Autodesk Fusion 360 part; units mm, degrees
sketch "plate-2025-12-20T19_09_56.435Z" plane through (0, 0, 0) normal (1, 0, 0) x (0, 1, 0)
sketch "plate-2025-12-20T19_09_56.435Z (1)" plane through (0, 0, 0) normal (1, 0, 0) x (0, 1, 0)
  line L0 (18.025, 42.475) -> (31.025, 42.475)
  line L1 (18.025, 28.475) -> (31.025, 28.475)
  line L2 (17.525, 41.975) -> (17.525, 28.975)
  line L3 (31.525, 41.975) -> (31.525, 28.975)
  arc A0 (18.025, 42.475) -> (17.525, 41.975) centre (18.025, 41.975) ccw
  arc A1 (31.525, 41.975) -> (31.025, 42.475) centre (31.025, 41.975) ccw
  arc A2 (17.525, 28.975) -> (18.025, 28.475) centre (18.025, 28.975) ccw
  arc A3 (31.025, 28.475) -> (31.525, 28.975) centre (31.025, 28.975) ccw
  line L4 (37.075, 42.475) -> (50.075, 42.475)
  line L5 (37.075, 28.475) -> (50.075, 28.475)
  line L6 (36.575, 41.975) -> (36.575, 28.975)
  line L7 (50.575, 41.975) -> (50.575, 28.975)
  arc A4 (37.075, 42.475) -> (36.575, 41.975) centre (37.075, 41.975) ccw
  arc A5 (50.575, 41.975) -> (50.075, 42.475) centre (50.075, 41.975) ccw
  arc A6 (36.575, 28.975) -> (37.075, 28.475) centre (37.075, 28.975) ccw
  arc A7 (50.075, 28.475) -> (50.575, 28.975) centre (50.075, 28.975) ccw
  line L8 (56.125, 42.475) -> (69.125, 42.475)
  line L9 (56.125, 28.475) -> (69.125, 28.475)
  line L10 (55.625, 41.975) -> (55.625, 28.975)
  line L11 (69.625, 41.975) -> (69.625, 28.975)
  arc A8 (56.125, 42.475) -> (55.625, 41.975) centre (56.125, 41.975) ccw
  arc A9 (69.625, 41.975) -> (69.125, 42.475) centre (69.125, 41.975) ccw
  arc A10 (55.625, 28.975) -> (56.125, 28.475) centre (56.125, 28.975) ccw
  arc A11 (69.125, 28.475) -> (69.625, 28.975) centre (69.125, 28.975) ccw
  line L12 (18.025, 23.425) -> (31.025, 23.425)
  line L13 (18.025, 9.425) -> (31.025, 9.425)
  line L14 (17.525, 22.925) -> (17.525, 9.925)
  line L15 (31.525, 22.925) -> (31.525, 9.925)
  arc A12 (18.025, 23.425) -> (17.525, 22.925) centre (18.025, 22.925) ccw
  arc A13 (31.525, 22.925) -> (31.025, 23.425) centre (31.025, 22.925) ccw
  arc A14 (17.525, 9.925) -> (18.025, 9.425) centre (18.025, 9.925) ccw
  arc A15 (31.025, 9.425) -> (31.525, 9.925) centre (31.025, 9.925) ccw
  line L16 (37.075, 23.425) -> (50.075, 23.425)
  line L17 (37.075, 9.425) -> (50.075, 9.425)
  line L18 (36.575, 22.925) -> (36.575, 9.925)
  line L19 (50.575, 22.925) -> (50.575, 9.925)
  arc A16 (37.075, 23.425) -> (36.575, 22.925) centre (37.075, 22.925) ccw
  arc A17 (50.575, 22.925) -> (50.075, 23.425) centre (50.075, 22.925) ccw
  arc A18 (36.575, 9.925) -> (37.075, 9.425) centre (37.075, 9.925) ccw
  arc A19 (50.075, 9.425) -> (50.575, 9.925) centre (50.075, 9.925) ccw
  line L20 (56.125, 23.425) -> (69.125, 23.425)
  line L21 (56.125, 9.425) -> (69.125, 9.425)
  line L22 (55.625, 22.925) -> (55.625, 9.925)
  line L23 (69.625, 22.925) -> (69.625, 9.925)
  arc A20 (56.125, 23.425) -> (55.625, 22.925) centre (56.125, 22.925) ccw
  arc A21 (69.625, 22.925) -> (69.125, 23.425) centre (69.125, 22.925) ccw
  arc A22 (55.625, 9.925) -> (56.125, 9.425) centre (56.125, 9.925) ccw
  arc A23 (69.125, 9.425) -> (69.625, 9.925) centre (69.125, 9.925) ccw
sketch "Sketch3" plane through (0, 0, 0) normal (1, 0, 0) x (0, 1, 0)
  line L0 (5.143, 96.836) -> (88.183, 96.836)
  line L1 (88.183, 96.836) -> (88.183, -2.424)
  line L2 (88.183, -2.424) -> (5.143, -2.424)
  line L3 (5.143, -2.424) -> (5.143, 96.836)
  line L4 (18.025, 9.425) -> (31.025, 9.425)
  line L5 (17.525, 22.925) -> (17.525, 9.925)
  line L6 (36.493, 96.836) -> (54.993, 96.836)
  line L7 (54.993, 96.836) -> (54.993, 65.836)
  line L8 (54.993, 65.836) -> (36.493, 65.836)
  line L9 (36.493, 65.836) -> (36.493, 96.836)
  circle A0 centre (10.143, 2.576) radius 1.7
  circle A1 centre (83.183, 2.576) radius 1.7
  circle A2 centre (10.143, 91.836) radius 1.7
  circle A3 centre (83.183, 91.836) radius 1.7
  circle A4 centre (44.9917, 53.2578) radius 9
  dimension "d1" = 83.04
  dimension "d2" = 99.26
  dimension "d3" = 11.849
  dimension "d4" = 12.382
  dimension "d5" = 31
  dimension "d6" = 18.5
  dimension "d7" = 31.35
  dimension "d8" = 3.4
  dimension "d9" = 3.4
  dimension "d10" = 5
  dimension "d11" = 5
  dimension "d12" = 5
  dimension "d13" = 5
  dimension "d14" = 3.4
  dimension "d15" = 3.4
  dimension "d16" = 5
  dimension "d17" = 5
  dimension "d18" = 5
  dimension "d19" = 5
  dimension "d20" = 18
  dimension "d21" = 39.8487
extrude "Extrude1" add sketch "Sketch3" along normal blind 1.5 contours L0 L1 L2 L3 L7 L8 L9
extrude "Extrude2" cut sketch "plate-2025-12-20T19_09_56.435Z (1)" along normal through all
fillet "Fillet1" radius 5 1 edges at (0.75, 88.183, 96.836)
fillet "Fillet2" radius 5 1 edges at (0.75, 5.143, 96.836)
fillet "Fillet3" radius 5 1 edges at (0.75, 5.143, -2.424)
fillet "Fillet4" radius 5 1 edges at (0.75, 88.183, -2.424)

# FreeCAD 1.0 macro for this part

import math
import FreeCAD as App
import Part
import Sketcher
from FreeCAD import Vector
Q = App.Units.Quantity


def edges_at(feature, points):
    """Names of the edges that pass closest to the given points."""
    edges = feature.Shape.Edges
    near = lambda p: min(range(len(edges)), key=lambda i: edges[i].distToShape(Part.Vertex(*p))[0])
    return sorted({f"Edge{near(p) + 1}" for p in points})


def add_polygon(sketch, points):
    """Adds a closed chain of lines whose ends are joined by coincident constraints."""
    first, n = sketch.GeometryCount, len(points)
    for a, b in zip(points, points[1:] + points[:1]):
        sketch.addGeometry(Part.LineSegment(App.Vector(*a, 0), App.Vector(*b, 0)), False)
    for i in range(n):
        sketch.addConstraint(Sketcher.Constraint("Coincident", first + i, 2, first + (i + 1) % n, 1))

doc = App.newDocument("Part")
params = doc.addObject("Spreadsheet::Sheet", "Params")
for row, (alias, value) in enumerate([
    ("sketch1_diameter", "18 mm"),
    ("sketch1_diameter2", "3.4 mm"),
    ("sketch1_height", "31 mm"),
    ("sketch1_width", "18.5 mm"),
    ("sketch1_width2", "31.35 mm"),
    ("pad1_length", "1.5 mm"),
    ("sketch2_radius", "0.5 mm"),
    ("sketch2_width", "13 mm"),
    ("fillet_radius", "5 mm"),
    ("fillet2_radius", "5 mm"),
    ("fillet3_radius", "5 mm"),
    ("fillet4_radius", "5 mm"),
], start=1):
    params.set(f"A{row}", alias)
    params.set(f"B{row}", "=" + value)
    params.setAlias(f"B{row}", alias)

body = doc.addObject("PartDesign::Body", "Body")

# Sketch on YZ plane
sketch1 = body.newObject("Sketcher::SketchObject", "Sketch")
sketch1.AttachmentSupport = (doc.getObject("YZ_Plane"), [""])
sketch1.MapMode = "FlatFace"
add_polygon(sketch1, [(36.5, 96.8), (5.1, 96.8), (5.1, -2.4), (88.2, -2.4), (88.2, 96.8), (55, 96.8), (55, 65.8), (36.5, 65.8)])  # lines 0-7
sketch1.addGeometry(Part.Circle(Vector(10.1, 2.6, 0), Vector(0, 0, 1), 1.7), False)  # 8
sketch1.addGeometry(Part.Circle(Vector(83.2, 2.6, 0), Vector(0, 0, 1), 1.7), False)  # 9
sketch1.addGeometry(Part.Circle(Vector(45, 53.3, 0), Vector(0, 0, 1), 9), False)  # 10
sketch1.addGeometry(Part.Circle(Vector(10.1, 91.8, 0), Vector(0, 0, 1), 1.7), False)  # 11
sketch1.addGeometry(Part.Circle(Vector(83.2, 91.8, 0), Vector(0, 0, 1), 1.7), False)  # 12
sketch1.addConstraint([
    Sketcher.Constraint("Horizontal", 0),
    Sketcher.Constraint("Vertical", 1),
    Sketcher.Constraint("Horizontal", 2),
    Sketcher.Constraint("Vertical", 3),
    Sketcher.Constraint("Horizontal", 4),
    Sketcher.Constraint("Vertical", 5),
    Sketcher.Constraint("Horizontal", 6),
    Sketcher.Constraint("Vertical", 7),
    Sketcher.Constraint("Equal", 8, 9),
    Sketcher.Constraint("Equal", 9, 11),
    Sketcher.Constraint("Equal", 11, 12),
    Sketcher.Constraint("Horizontal", 8, 3, 9, 3),
    Sketcher.Constraint("Horizontal", 11, 3, 12, 3),
    Sketcher.Constraint("Horizontal", 0, 2, 3, 2),
    Sketcher.Constraint("Vertical", 8, 3, 11, 3),
    Sketcher.Constraint("Vertical", 9, 3, 12, 3),
    Sketcher.Constraint("Diameter", 10, Q("18 mm")),
    Sketcher.Constraint("Diameter", 8, Q("3.4 mm")),
    Sketcher.Constraint("DistanceY", 5, 2, 5, 1, Q("31 mm")),
    Sketcher.Constraint("DistanceX", 6, 2, 6, 1, Q("18.5 mm")),
    Sketcher.Constraint("DistanceX", 0, 2, 11, 3, Q("5 mm")),
    Sketcher.Constraint("DistanceY", 11, 3, 0, 2, Q("5 mm")),
    Sketcher.Constraint("DistanceY", 1, 2, 8, 3, Q("5 mm")),
    Sketcher.Constraint("DistanceX", 9, 3, 2, 2, Q("5 mm")),
    Sketcher.Constraint("DistanceX", 0, 2, 0, 1, Q("31.35 mm")),
    Sketcher.Constraint("DistanceX", 2, 1, 2, 2, Q("83.04 mm")),
    Sketcher.Constraint("DistanceY", 1, 2, 1, 1, Q("99.26 mm")),
    Sketcher.Constraint("DistanceX", 0, 2, 10, 3, Q("39.8487 mm")),
    Sketcher.Constraint("DistanceX", -1, 1, 8, 3, Q("10.143 mm")),
    Sketcher.Constraint("DistanceY", -1, 1, 8, 3, Q("2.576 mm")),
    Sketcher.Constraint("DistanceY", -1, 1, 10, 3, Q("53.2578 mm")),
])
sketch1.setExpression("Constraints[24]", "Params.sketch1_diameter")
sketch1.setExpression("Constraints[25]", "Params.sketch1_diameter2")
sketch1.setExpression("Constraints[26]", "Params.sketch1_height")
sketch1.setExpression("Constraints[27]", "Params.sketch1_width")
sketch1.setExpression("Constraints[32]", "Params.sketch1_width2")
pad1 = body.newObject("PartDesign::Pad", "Pad")
pad1.Profile = sketch1
pad1.setExpression("Length", "Params.pad1_length")

# Sketch on YZ plane
sketch2 = body.newObject("Sketcher::SketchObject", "Sketch001")
sketch2.AttachmentSupport = (doc.getObject("YZ_Plane"), [""])
sketch2.MapMode = "FlatFace"
sketch2.addGeometry([
    Part.LineSegment(Vector(31, 42.5, 0), Vector(18, 42.5, 0)),  # 0
    Part.ArcOfCircle(Part.Circle(Vector(18, 42, 0), Vector(0, 0, 1), 0.5), math.radians(90), math.radians(180)),  # 1
    Part.LineSegment(Vector(17.5, 42, 0), Vector(17.5, 29, 0)),  # 2
    Part.ArcOfCircle(Part.Circle(Vector(18, 29, 0), Vector(0, 0, 1), 0.5), math.radians(180), math.radians(270)),  # 3
    Part.LineSegment(Vector(18, 28.5, 0), Vector(31, 28.5, 0)),  # 4
    Part.ArcOfCircle(Part.Circle(Vector(31, 29, 0), Vector(0, 0, 1), 0.5), math.radians(-90), math.radians(0)),  # 5
    Part.LineSegment(Vector(31.5, 29, 0), Vector(31.5, 42, 0)),  # 6
    Part.ArcOfCircle(Part.Circle(Vector(31, 42, 0), Vector(0, 0, 1), 0.5), math.radians(0), math.radians(90)),  # 7
    Part.LineSegment(Vector(50.1, 42.5, 0), Vector(37.1, 42.5, 0)),  # 8
    Part.ArcOfCircle(Part.Circle(Vector(37.1, 42, 0), Vector(0, 0, 1), 0.5), math.radians(90), math.radians(180)),  # 9
    Part.LineSegment(Vector(36.6, 42, 0), Vector(36.6, 29, 0)),  # 10
    Part.ArcOfCircle(Part.Circle(Vector(37.1, 29, 0), Vector(0, 0, 1), 0.5), math.radians(180), math.radians(270)),  # 11
    Part.LineSegment(Vector(37.1, 28.5, 0), Vector(50.1, 28.5, 0)),  # 12
    Part.ArcOfCircle(Part.Circle(Vector(50.1, 29, 0), Vector(0, 0, 1), 0.5), math.radians(-90), math.radians(0)),  # 13
    Part.LineSegment(Vector(50.6, 29, 0), Vector(50.6, 42, 0)),  # 14
    Part.ArcOfCircle(Part.Circle(Vector(50.1, 42, 0), Vector(0, 0, 1), 0.5), math.radians(0), math.radians(90)),  # 15
    Part.LineSegment(Vector(69.1, 42.5, 0), Vector(56.1, 42.5, 0)),  # 16
    Part.ArcOfCircle(Part.Circle(Vector(56.1, 42, 0), Vector(0, 0, 1), 0.5), math.radians(90), math.radians(180)),  # 17
    Part.LineSegment(Vector(55.6, 42, 0), Vector(55.6, 29, 0)),  # 18
    Part.ArcOfCircle(Part.Circle(Vector(56.1, 29, 0), Vector(0, 0, 1), 0.5), math.radians(180), math.radians(270)),  # 19
    Part.LineSegment(Vector(56.1, 28.5, 0), Vector(69.1, 28.5, 0)),  # 20
    Part.ArcOfCircle(Part.Circle(Vector(69.1, 29, 0), Vector(0, 0, 1), 0.5), math.radians(-90), math.radians(0)),  # 21
    Part.LineSegment(Vector(69.6, 29, 0), Vector(69.6, 42, 0)),  # 22
    Part.ArcOfCircle(Part.Circle(Vector(69.1, 42, 0), Vector(0, 0, 1), 0.5), math.radians(0), math.radians(90)),  # 23
    Part.LineSegment(Vector(31, 23.4, 0), Vector(18, 23.4, 0)),  # 24
    Part.ArcOfCircle(Part.Circle(Vector(18, 22.9, 0), Vector(0, 0, 1), 0.5), math.radians(90), math.radians(180)),  # 25
    Part.LineSegment(Vector(17.5, 22.9, 0), Vector(17.5, 9.9, 0)),  # 26
    Part.ArcOfCircle(Part.Circle(Vector(18, 9.9, 0), Vector(0, 0, 1), 0.5), math.radians(180), math.radians(270)),  # 27
    Part.LineSegment(Vector(18, 9.4, 0), Vector(31, 9.4, 0)),  # 28
    Part.ArcOfCircle(Part.Circle(Vector(31, 9.9, 0), Vector(0, 0, 1), 0.5), math.radians(-90), math.radians(0)),  # 29
    Part.LineSegment(Vector(31.5, 9.9, 0), Vector(31.5, 22.9, 0)),  # 30
    Part.ArcOfCircle(Part.Circle(Vector(31, 22.9, 0), Vector(0, 0, 1), 0.5), math.radians(0), math.radians(90)),  # 31
    Part.LineSegment(Vector(50.1, 23.4, 0), Vector(37.1, 23.4, 0)),  # 32
    Part.ArcOfCircle(Part.Circle(Vector(37.1, 22.9, 0), Vector(0, 0, 1), 0.5), math.radians(90), math.radians(180)),  # 33
    Part.LineSegment(Vector(36.6, 22.9, 0), Vector(36.6, 9.9, 0)),  # 34
    Part.ArcOfCircle(Part.Circle(Vector(37.1, 9.9, 0), Vector(0, 0, 1), 0.5), math.radians(180), math.radians(270)),  # 35
    Part.LineSegment(Vector(37.1, 9.4, 0), Vector(50.1, 9.4, 0)),  # 36
    Part.ArcOfCircle(Part.Circle(Vector(50.1, 9.9, 0), Vector(0, 0, 1), 0.5), math.radians(-90), math.radians(0)),  # 37
    Part.LineSegment(Vector(50.6, 9.9, 0), Vector(50.6, 22.9, 0)),  # 38
    Part.ArcOfCircle(Part.Circle(Vector(50.1, 22.9, 0), Vector(0, 0, 1), 0.5), math.radians(0), math.radians(90)),  # 39
    Part.LineSegment(Vector(69.1, 23.4, 0), Vector(56.1, 23.4, 0)),  # 40
    Part.ArcOfCircle(Part.Circle(Vector(56.1, 22.9, 0), Vector(0, 0, 1), 0.5), math.radians(90), math.radians(180)),  # 41
    Part.LineSegment(Vector(55.6, 22.9, 0), Vector(55.6, 9.9, 0)),  # 42
    Part.ArcOfCircle(Part.Circle(Vector(56.1, 9.9, 0), Vector(0, 0, 1), 0.5), math.radians(180), math.radians(270)),  # 43
    Part.LineSegment(Vector(56.1, 9.4, 0), Vector(69.1, 9.4, 0)),  # 44
    Part.ArcOfCircle(Part.Circle(Vector(69.1, 9.9, 0), Vector(0, 0, 1), 0.5), math.radians(-90), math.radians(0)),  # 45
    Part.LineSegment(Vector(69.6, 9.9, 0), Vector(69.6, 22.9, 0)),  # 46
    Part.ArcOfCircle(Part.Circle(Vector(69.1, 22.9, 0), Vector(0, 0, 1), 0.5), math.radians(0), math.radians(90)),  # 47
], False)
sketch2.addConstraint([
    Sketcher.Constraint("Tangent", 0, 2, 1, 1),
    Sketcher.Constraint("Tangent", 1, 2, 2, 1),
    Sketcher.Constraint("Tangent", 2, 2, 3, 1),
    Sketcher.Constraint("Tangent", 3, 2, 4, 1),
    Sketcher.Constraint("Tangent", 4, 2, 5, 1),
    Sketcher.Constraint("Tangent", 5, 2, 6, 1),
    Sketcher.Constraint("Tangent", 6, 2, 7, 1),
    Sketcher.Constraint("Tangent", 7, 2, 0, 1),
    Sketcher.Constraint("Tangent", 8, 2, 9, 1),
    Sketcher.Constraint("Tangent", 9, 2, 10, 1),
    Sketcher.Constraint("Tangent", 10, 2, 11, 1),
    Sketcher.Constraint("Tangent", 11, 2, 12, 1),
    Sketcher.Constraint("Tangent", 12, 2, 13, 1),
    Sketcher.Constraint("Tangent", 13, 2, 14, 1),
    Sketcher.Constraint("Tangent", 14, 2, 15, 1),
    Sketcher.Constraint("Tangent", 15, 2, 8, 1),
    Sketcher.Constraint("Tangent", 16, 2, 17, 1),
    Sketcher.Constraint("Tangent", 17, 2, 18, 1),
    Sketcher.Constraint("Tangent", 18, 2, 19, 1),
    Sketcher.Constraint("Tangent", 19, 2, 20, 1),
    Sketcher.Constraint("Tangent", 20, 2, 21, 1),
    Sketcher.Constraint("Tangent", 21, 2, 22, 1),
    Sketcher.Constraint("Tangent", 22, 2, 23, 1),
    Sketcher.Constraint("Tangent", 23, 2, 16, 1),
    Sketcher.Constraint("Tangent", 24, 2, 25, 1),
    Sketcher.Constraint("Tangent", 25, 2, 26, 1),
    Sketcher.Constraint("Tangent", 26, 2, 27, 1),
    Sketcher.Constraint("Tangent", 27, 2, 28, 1),
    Sketcher.Constraint("Tangent", 28, 2, 29, 1),
    Sketcher.Constraint("Tangent", 29, 2, 30, 1),
    Sketcher.Constraint("Tangent", 30, 2, 31, 1),
    Sketcher.Constraint("Tangent", 31, 2, 24, 1),
    Sketcher.Constraint("Tangent", 32, 2, 33, 1),
    Sketcher.Constraint("Tangent", 33, 2, 34, 1),
    Sketcher.Constraint("Tangent", 34, 2, 35, 1),
    Sketcher.Constraint("Tangent", 35, 2, 36, 1),
    Sketcher.Constraint("Tangent", 36, 2, 37, 1),
    Sketcher.Constraint("Tangent", 37, 2, 38, 1),
    Sketcher.Constraint("Tangent", 38, 2, 39, 1),
    Sketcher.Constraint("Tangent", 39, 2, 32, 1),
    Sketcher.Constraint("Tangent", 40, 2, 41, 1),
    Sketcher.Constraint("Tangent", 41, 2, 42, 1),
    Sketcher.Constraint("Tangent", 42, 2, 43, 1),
    Sketcher.Constraint("Tangent", 43, 2, 44, 1),
    Sketcher.Constraint("Tangent", 44, 2, 45, 1),
    Sketcher.Constraint("Tangent", 45, 2, 46, 1),
    Sketcher.Constraint("Tangent", 46, 2, 47, 1),
    Sketcher.Constraint("Tangent", 47, 2, 40, 1),
    Sketcher.Constraint("Horizontal", 0),
    Sketcher.Constraint("Vertical", 2),
    Sketcher.Constraint("Horizontal", 4),
    Sketcher.Constraint("Vertical", 6),
    Sketcher.Constraint("Horizontal", 8),
    Sketcher.Constraint("Vertical", 10),
    Sketcher.Constraint("Horizontal", 12),
    Sketcher.Constraint("Vertical", 14),
    Sketcher.Constraint("Horizontal", 16),
    Sketcher.Constraint("Vertical", 18),
    Sketcher.Constraint("Horizontal", 20),
    Sketcher.Constraint("Vertical", 22),
    Sketcher.Constraint("Horizontal", 24),
    Sketcher.Constraint("Vertical", 26),
    Sketcher.Constraint("Horizontal", 28),
    Sketcher.Constraint("Vertical", 30),
    Sketcher.Constraint("Horizontal", 32),
    Sketcher.Constraint("Vertical", 34),
    Sketcher.Constraint("Horizontal", 36),
    Sketcher.Constraint("Vertical", 38),
    Sketcher.Constraint("Horizontal", 40),
    Sketcher.Constraint("Vertical", 42),
    Sketcher.Constraint("Horizontal", 44),
    Sketcher.Constraint("Vertical", 46),
    Sketcher.Constraint("Equal", 1, 3),
    Sketcher.Constraint("Equal", 3, 5),
    Sketcher.Constraint("Equal", 5, 7),
    Sketcher.Constraint("Equal", 7, 9),
    Sketcher.Constraint("Equal", 9, 11),
    Sketcher.Constraint("Equal", 11, 13),
    Sketcher.Constraint("Equal", 13, 15),
    Sketcher.Constraint("Equal", 15, 17),
    Sketcher.Constraint("Equal", 17, 19),
    Sketcher.Constraint("Equal", 19, 21),
    Sketcher.Constraint("Equal", 21, 23),
    Sketcher.Constraint("Equal", 23, 25),
    Sketcher.Constraint("Equal", 25, 27),
    Sketcher.Constraint("Equal", 27, 29),
    Sketcher.Constraint("Equal", 29, 31),
    Sketcher.Constraint("Equal", 31, 33),
    Sketcher.Constraint("Equal", 33, 35),
    Sketcher.Constraint("Equal", 35, 37),
    Sketcher.Constraint("Equal", 37, 39),
    Sketcher.Constraint("Equal", 39, 41),
    Sketcher.Constraint("Equal", 41, 43),
    Sketcher.Constraint("Equal", 43, 45),
    Sketcher.Constraint("Equal", 45, 47),
    Sketcher.Constraint("Horizontal", 7, 3, 9, 3),
    Sketcher.Constraint("Horizontal", 5, 3, 11, 3),
    Sketcher.Constraint("Horizontal", 15, 3, 17, 3),
    Sketcher.Constraint("Horizontal", 13, 3, 19, 3),
    Sketcher.Constraint("Horizontal", 31, 3, 33, 3),
    Sketcher.Constraint("Horizontal", 29, 3, 35, 3),
    Sketcher.Constraint("Horizontal", 39, 3, 41, 3),
    Sketcher.Constraint("Horizontal", 37, 3, 43, 3),
    Sketcher.Constraint("Vertical", 3, 3, 25, 3),
    Sketcher.Constraint("Vertical", 7, 3, 29, 3),
    Sketcher.Constraint("Vertical", 11, 3, 33, 3),
    Sketcher.Constraint("Vertical", 15, 3, 37, 3),
    Sketcher.Constraint("Vertical", 19, 3, 41, 3),
    Sketcher.Constraint("Vertical", 23, 3, 45, 3),
    Sketcher.Constraint("Equal", 4, 8),
    Sketcher.Constraint("Equal", 12, 16),
    Sketcher.Constraint("Equal", 44, 2),
    Sketcher.Constraint("Equal", 22, 26),
    Sketcher.Constraint("Radius", 1, Q("0.5 mm")),
    Sketcher.Constraint("DistanceX", 0, 2, 0, 1, Q("13 mm")),
    Sketcher.Constraint("DistanceX", -1, 1, 1, 3, Q("18.025 mm")),
    Sketcher.Constraint("DistanceY", -1, 1, 1, 3, Q("41.975 mm")),
    Sketcher.Constraint("DistanceX", -1, 1, 9, 3, Q("37.075 mm")),
    Sketcher.Constraint("DistanceX", -1, 1, 17, 3, Q("56.125 mm")),
    Sketcher.Constraint("DistanceY", -1, 1, 25, 3, Q("22.925 mm")),
])
sketch2.setExpression("Constraints[113]", "Params.sketch2_radius")
sketch2.setExpression("Constraints[114]", "Params.sketch2_width")
pocket1 = body.newObject("PartDesign::Pocket", "Pocket")
pocket1.Profile = sketch2
pocket1.Type = "ThroughAll"
pocket1.Reversed = True
doc.recompute()

fillet = body.newObject("PartDesign::Fillet", "Fillet")
fillet.Base = (pocket1, edges_at(pocket1, [(0.75, 88.183, 96.836)]))
fillet.setExpression("Radius", "Params.fillet_radius")
doc.recompute()

fillet2 = body.newObject("PartDesign::Fillet", "Fillet001")
fillet2.Base = (fillet, edges_at(fillet, [(0.75, 5.143, 96.836)]))
fillet2.setExpression("Radius", "Params.fillet2_radius")
doc.recompute()

fillet3 = body.newObject("PartDesign::Fillet", "Fillet002")
fillet3.Base = (fillet2, edges_at(fillet2, [(0.75, 5.143, -2.424)]))
fillet3.setExpression("Radius", "Params.fillet3_radius")
doc.recompute()

fillet4 = body.newObject("PartDesign::Fillet", "Fillet003")
fillet4.Base = (fillet3, edges_at(fillet3, [(0.75, 88.183, -2.424)]))
fillet4.setExpression("Radius", "Params.fillet4_radius")

doc.recompute()
